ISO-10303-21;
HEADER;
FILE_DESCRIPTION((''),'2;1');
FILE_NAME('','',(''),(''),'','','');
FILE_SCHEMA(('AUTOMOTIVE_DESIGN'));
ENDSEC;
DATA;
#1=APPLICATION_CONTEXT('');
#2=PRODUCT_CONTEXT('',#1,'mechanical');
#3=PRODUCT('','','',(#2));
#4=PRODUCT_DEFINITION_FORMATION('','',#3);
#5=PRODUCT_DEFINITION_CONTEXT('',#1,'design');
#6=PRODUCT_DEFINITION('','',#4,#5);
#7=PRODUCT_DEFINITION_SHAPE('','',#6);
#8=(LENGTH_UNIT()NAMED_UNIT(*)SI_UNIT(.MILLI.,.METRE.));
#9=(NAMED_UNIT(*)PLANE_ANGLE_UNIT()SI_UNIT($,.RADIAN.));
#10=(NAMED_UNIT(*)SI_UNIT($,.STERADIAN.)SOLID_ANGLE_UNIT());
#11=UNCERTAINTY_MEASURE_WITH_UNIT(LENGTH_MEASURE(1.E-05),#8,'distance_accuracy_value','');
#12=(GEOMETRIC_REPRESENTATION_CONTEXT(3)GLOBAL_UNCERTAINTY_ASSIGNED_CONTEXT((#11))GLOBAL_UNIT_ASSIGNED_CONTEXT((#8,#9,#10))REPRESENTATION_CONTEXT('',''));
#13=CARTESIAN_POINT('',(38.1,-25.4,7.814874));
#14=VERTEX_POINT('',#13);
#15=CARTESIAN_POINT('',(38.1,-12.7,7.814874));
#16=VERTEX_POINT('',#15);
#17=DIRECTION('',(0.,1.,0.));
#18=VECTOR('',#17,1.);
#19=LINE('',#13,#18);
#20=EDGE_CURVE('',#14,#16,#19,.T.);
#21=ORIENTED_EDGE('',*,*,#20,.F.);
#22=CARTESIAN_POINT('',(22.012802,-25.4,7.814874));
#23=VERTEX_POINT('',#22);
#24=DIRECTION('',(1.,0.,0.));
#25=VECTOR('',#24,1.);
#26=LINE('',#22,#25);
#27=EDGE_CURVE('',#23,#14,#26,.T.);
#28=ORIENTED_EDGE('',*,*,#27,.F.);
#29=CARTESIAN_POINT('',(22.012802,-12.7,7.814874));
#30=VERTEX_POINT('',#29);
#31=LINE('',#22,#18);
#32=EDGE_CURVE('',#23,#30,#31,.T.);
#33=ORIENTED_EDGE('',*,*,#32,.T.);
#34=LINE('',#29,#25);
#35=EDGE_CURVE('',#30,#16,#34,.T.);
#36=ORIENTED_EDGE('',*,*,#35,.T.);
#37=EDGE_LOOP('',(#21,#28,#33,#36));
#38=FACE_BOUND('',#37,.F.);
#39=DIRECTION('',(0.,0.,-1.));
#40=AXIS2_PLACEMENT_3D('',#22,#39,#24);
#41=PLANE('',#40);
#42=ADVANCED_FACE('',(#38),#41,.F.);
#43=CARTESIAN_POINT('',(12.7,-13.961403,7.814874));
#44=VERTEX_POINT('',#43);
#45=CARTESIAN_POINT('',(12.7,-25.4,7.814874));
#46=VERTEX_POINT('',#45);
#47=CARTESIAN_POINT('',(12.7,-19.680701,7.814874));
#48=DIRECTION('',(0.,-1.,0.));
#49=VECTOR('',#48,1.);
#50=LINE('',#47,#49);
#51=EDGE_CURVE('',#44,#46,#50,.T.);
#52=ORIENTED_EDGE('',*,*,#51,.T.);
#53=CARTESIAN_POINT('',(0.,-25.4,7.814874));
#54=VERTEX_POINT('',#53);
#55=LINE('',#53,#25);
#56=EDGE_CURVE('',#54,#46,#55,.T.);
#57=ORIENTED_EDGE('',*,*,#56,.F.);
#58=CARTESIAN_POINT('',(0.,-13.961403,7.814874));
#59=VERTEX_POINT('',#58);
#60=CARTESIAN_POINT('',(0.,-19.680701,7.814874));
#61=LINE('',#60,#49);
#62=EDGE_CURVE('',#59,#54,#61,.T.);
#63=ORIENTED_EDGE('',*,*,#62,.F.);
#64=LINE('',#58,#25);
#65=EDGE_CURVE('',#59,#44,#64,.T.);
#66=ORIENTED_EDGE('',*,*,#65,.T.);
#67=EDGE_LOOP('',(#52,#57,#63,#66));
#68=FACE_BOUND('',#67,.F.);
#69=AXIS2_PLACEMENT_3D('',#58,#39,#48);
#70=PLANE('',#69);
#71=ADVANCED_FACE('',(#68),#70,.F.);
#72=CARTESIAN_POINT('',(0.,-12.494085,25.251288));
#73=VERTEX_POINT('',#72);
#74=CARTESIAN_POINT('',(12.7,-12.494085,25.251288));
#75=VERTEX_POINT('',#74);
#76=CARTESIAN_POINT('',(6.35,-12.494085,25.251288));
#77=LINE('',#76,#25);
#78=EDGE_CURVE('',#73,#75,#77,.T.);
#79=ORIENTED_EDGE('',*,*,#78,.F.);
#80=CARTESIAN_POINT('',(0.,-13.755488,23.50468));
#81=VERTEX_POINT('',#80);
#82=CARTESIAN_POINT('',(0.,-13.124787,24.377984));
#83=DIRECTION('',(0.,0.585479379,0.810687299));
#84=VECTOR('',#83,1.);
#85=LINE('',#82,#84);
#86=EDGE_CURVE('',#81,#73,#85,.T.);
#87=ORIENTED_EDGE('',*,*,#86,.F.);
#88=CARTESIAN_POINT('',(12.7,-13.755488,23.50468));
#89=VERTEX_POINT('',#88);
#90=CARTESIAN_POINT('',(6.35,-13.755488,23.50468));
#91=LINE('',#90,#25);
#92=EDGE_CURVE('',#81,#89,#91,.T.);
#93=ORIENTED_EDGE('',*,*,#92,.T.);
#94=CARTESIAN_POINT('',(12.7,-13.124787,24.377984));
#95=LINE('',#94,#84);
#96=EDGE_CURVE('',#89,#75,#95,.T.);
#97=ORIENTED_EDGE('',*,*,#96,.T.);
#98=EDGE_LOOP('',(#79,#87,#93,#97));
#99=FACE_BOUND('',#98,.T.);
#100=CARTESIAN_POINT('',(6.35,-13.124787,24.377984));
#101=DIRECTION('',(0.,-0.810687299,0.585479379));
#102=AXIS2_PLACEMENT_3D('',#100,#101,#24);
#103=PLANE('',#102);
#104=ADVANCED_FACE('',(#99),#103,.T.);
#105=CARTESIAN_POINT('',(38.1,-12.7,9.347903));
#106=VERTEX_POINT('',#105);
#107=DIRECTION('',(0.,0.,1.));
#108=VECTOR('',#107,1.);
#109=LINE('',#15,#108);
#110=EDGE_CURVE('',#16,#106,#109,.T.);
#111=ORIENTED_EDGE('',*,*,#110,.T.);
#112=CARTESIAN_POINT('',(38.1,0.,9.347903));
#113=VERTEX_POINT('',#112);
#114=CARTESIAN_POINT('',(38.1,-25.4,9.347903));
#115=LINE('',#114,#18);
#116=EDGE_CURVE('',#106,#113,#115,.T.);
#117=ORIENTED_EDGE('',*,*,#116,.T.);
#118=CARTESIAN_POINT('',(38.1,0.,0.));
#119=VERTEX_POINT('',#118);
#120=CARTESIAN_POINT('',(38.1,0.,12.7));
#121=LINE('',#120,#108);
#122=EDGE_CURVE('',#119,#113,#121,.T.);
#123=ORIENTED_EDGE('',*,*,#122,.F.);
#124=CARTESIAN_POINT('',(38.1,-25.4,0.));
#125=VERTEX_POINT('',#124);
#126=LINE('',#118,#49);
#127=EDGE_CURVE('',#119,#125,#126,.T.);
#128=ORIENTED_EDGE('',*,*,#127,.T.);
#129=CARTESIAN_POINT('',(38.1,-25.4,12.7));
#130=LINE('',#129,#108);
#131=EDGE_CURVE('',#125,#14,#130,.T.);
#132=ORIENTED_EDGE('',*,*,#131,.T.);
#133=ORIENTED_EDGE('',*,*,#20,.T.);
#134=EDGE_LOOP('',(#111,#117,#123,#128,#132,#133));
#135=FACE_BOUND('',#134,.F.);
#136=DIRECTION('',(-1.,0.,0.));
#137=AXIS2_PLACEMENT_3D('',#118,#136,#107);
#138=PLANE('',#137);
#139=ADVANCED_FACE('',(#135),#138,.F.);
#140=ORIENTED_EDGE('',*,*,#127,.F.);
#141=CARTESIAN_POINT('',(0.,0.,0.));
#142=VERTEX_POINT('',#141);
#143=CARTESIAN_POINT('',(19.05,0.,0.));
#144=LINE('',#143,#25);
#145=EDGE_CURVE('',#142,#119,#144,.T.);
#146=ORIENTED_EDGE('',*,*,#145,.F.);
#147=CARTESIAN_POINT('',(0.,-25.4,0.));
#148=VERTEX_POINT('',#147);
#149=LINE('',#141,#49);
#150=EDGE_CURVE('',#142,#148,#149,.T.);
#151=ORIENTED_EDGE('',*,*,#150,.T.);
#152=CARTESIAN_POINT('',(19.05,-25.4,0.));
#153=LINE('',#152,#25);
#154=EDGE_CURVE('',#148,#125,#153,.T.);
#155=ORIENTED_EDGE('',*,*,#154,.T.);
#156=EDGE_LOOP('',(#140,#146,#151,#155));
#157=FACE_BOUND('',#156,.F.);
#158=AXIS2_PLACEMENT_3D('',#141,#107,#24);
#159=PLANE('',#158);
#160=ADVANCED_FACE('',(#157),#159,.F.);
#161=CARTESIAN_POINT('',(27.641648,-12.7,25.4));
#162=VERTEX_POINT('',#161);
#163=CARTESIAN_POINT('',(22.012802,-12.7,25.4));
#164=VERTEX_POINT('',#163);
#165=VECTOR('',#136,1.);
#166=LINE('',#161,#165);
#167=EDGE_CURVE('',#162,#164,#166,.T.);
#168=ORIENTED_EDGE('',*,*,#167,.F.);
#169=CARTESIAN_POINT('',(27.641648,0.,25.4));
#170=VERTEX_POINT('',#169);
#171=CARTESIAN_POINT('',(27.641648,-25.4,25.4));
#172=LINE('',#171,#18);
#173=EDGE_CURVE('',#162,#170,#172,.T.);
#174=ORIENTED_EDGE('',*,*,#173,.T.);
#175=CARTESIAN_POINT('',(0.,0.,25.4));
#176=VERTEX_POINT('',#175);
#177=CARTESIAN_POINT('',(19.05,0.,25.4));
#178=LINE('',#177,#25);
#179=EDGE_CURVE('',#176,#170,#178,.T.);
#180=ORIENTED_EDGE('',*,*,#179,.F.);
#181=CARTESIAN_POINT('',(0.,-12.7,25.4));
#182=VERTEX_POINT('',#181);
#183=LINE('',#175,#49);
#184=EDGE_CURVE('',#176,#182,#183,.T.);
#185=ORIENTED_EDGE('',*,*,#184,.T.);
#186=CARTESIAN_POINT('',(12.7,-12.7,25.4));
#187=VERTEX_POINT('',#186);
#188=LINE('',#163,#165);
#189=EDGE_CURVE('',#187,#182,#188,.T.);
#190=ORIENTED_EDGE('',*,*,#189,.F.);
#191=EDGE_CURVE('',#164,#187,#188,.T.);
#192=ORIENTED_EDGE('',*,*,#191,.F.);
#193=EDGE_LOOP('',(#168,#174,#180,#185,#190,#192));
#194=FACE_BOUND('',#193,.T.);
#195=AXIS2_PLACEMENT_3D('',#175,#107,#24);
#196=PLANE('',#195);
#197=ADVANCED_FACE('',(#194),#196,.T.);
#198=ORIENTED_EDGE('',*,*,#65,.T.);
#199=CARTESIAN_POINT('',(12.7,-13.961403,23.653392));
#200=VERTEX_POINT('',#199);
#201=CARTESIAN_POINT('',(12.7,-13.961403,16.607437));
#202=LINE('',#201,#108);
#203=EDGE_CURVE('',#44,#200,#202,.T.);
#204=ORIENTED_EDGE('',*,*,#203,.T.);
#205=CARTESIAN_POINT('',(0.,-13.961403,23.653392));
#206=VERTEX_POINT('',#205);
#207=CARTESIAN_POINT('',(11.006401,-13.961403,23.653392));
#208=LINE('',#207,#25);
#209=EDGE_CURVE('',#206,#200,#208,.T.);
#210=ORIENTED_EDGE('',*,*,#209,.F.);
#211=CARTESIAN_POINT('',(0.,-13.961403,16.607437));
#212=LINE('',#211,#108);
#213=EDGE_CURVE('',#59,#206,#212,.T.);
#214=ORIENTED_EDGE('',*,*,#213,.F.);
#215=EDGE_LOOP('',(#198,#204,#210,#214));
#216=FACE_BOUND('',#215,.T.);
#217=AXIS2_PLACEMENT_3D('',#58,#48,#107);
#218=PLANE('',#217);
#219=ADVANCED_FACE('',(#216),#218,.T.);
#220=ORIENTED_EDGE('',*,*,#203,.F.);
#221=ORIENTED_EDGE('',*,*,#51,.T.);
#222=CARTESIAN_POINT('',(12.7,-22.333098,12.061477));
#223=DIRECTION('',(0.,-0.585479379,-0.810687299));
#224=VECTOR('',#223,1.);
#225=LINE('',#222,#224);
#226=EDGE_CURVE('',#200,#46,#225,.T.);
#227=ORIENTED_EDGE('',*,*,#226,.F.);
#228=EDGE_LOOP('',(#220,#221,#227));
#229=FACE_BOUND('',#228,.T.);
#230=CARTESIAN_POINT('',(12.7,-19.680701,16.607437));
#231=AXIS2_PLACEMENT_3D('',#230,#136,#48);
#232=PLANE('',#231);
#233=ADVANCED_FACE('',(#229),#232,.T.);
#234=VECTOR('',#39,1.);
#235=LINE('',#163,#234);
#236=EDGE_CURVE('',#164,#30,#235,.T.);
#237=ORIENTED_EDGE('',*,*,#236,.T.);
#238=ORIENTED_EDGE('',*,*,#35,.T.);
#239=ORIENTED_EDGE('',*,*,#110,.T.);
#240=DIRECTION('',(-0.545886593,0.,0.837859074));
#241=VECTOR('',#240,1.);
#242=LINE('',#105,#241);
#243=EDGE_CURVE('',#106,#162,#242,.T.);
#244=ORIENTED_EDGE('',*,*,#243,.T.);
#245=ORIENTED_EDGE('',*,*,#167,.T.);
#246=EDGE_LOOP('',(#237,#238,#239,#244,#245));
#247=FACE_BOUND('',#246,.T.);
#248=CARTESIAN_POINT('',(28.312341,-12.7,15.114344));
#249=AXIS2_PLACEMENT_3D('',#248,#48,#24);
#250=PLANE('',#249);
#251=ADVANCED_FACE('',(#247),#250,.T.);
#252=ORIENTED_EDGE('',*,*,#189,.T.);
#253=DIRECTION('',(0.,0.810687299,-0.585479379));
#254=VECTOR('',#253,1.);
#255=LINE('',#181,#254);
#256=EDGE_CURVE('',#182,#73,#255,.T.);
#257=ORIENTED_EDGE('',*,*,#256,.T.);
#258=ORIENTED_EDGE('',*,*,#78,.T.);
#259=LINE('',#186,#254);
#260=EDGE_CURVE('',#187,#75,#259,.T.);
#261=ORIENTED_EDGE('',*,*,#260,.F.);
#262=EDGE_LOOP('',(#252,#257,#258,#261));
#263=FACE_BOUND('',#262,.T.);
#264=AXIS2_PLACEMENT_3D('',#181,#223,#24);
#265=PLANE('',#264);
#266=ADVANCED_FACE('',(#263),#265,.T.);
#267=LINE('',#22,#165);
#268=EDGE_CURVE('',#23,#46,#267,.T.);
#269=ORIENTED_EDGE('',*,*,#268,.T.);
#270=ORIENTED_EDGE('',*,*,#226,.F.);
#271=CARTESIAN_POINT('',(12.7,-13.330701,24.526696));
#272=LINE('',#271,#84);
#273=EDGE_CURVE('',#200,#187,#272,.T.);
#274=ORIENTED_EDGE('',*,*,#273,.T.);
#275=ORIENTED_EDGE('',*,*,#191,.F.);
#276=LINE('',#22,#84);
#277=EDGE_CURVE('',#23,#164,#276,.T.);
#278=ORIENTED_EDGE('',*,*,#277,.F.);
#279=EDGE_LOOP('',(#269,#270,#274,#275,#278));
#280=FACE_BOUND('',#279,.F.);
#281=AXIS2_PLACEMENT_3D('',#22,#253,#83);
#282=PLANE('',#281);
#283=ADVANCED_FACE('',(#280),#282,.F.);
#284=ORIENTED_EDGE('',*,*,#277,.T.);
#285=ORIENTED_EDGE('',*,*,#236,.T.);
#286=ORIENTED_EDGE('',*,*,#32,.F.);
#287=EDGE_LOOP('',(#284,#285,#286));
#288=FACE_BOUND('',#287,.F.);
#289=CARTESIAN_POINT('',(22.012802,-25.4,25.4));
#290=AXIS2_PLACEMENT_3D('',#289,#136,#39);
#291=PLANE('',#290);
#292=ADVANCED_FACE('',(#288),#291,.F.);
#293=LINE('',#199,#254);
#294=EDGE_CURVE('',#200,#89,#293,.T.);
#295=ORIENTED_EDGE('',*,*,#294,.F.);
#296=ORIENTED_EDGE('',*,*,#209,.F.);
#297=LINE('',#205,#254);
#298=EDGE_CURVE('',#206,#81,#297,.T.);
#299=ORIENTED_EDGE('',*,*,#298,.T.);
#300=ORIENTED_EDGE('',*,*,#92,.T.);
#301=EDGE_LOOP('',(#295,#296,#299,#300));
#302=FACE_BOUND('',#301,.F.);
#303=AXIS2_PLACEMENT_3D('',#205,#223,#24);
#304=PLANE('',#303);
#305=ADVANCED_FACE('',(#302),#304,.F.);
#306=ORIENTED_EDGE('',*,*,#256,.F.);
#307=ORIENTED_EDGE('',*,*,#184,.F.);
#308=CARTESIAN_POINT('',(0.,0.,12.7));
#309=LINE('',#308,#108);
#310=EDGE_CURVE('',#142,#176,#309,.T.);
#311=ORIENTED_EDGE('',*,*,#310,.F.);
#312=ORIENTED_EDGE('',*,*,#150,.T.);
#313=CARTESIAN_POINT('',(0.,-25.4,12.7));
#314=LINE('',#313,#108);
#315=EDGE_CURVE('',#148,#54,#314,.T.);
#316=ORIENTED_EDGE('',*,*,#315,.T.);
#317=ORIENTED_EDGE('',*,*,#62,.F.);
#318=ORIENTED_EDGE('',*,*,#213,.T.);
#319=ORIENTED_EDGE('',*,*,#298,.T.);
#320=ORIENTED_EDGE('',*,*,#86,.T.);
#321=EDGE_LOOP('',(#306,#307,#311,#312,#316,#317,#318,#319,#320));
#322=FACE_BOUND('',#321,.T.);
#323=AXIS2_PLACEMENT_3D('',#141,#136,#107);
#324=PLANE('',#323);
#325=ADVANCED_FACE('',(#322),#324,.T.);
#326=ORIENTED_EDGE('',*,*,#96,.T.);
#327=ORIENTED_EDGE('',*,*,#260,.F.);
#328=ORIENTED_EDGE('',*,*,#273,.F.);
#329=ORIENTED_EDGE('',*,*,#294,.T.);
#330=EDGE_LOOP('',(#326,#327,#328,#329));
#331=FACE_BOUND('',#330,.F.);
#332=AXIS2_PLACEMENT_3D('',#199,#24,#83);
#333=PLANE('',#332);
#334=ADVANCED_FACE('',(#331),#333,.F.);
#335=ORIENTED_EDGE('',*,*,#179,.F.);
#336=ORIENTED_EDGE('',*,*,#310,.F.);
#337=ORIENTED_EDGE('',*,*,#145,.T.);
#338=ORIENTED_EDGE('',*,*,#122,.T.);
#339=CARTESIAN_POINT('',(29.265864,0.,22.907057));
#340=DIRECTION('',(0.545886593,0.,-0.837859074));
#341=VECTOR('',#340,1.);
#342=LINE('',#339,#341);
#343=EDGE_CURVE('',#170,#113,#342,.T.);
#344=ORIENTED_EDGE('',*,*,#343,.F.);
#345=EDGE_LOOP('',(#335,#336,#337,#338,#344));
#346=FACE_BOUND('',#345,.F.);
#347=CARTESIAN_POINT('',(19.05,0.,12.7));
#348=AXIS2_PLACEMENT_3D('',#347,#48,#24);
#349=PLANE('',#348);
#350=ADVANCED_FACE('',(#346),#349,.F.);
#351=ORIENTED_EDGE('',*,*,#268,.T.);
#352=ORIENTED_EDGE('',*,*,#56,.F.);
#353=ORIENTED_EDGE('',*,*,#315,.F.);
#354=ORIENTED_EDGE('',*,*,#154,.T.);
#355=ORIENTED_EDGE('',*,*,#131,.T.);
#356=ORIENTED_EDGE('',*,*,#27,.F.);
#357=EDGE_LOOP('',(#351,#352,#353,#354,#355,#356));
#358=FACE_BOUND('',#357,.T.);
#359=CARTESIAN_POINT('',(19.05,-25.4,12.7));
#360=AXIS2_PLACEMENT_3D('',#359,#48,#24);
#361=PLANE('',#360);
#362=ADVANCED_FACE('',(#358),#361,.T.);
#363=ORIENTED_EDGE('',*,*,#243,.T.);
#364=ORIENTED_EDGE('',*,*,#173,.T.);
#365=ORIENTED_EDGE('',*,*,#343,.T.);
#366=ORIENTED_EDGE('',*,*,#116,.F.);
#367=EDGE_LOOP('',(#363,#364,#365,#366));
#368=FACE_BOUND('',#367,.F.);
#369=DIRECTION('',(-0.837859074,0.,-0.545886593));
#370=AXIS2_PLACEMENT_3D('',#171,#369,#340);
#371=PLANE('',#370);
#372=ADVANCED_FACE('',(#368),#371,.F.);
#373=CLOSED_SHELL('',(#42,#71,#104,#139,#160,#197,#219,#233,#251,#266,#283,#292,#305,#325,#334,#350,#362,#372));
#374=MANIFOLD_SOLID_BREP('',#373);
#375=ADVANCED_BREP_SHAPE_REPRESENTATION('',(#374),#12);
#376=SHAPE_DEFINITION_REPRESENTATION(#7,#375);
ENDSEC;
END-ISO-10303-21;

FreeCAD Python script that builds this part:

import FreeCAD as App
import Part
import Sketcher
Q = App.Units.Quantity


def add_polygon(sketch, points):
    """Adds a closed chain of lines whose ends are joined by coincident constraints."""
    first, n = sketch.GeometryCount, len(points)
    for a, b in zip(points, points[1:] + points[:1]):
        sketch.addGeometry(Part.LineSegment(App.Vector(*a, 0), App.Vector(*b, 0)), False)
    for i in range(n):
        sketch.addConstraint(Sketcher.Constraint("Coincident", first + i, 2, first + (i + 1) % n, 1))

doc = App.newDocument("Part")
body = doc.addObject("PartDesign::Body", "Body")

# Sketch on XZ plane
sketch1 = doc.addObject("Sketcher::SketchObject", "Sketch")
body.addObject(sketch1)
sketch1.AttachmentSupport = (doc.XZ_Plane, [""])
sketch1.MapMode = "FlatFace"
add_polygon(sketch1, [(0, 25), (0, 0), (38, 0), (38, 25)])  # lines 0-3
sketch1.addConstraint([
    Sketcher.Constraint("Vertical", 0),
    Sketcher.Constraint("Horizontal", 1),
    Sketcher.Constraint("Vertical", 2),
    Sketcher.Constraint("Horizontal", 3),
    Sketcher.Constraint("Coincident", 0, 2, -1, 1),
    Sketcher.Constraint("DistanceY", 0, 2, 0, 1, Q("1 in")),
    Sketcher.Constraint("DistanceX", 1, 1, 1, 2, Q("1.5 in")),
])
pad1 = doc.addObject("PartDesign::Pad", "Pad")
body.addObject(pad1)
pad1.Profile = sketch1
pad1.Length = Q("1 in")

# Sketch on XZ plane
sketch2 = doc.addObject("Sketcher::SketchObject", "Sketch001")
body.addObject(sketch2)
sketch2.AttachmentSupport = (doc.XZ_Plane, [""])
sketch2.MapMode = "FlatFace"
sketch2.AttachmentOffset = App.Placement(App.Vector(0, 0, 1 * 25.4), App.Rotation())
add_polygon(sketch2, [(38, 25), (28, 25), (38, 9)])  # lines 0-2
sketch2.addConstraint([
    Sketcher.Constraint("Horizontal", 0),
    Sketcher.Constraint("Vertical", 2),
    Sketcher.Constraint("DistanceY", -1, 1, 0, 2, Q("1 in")),
    Sketcher.Constraint("DistanceX", -1, 1, 1, 2, Q("1.5 in")),
    Sketcher.Constraint("DistanceX", 0, 2, 0, 1, Q("10.458352 mm")),
    Sketcher.Constraint("Distance", 1, Q("19.158469 mm")),
])
pocket1 = doc.addObject("PartDesign::Pocket", "Pocket")
body.addObject(pocket1)
pocket1.Profile = sketch2
pocket1.Type = "ThroughAll"

# Sketch on YZ plane
sketch3 = doc.addObject("Sketcher::SketchObject", "Sketch002")
body.addObject(sketch3)
sketch3.AttachmentSupport = (doc.YZ_Plane, [""])
sketch3.MapMode = "FlatFace"
add_polygon(sketch3, [(-14, 25), (-14, 8), (-25, 8), (-25, 25)])  # lines 0-3
sketch3.addConstraint([
    Sketcher.Constraint("Vertical", 0),
    Sketcher.Constraint("Horizontal", 1),
    Sketcher.Constraint("Vertical", 2),
    Sketcher.Constraint("Horizontal", 3),
    Sketcher.Constraint("DistanceX", 1, 2, -1, 1, Q("1 in")),
    Sketcher.Constraint("DistanceY", -1, 1, 2, 2, Q("1 in")),
    Sketcher.Constraint("DistanceX", 1, 2, 1, 1, Q("11.438597 mm")),
    Sketcher.Constraint("DistanceY", 0, 2, 0, 1, Q("17.585126 mm")),
])
pocket2 = doc.addObject("PartDesign::Pocket", "Pocket001")
body.addObject(pocket2)
pocket2.Profile = sketch3
pocket2.Length = Q("0.5 in")
pocket2.Reversed = True

# Sketch on XZ plane
sketch4 = doc.addObject("Sketcher::SketchObject", "Sketch003")
body.addObject(sketch4)
sketch4.AttachmentSupport = (doc.XZ_Plane, [""])
sketch4.MapMode = "FlatFace"
sketch4.AttachmentOffset = App.Placement(App.Vector(0, 0, 1 * 25.4), App.Rotation())
add_polygon(sketch4, [(22, 25.4), (22, 7.8), (38.1, 7.8), (38.1, 9.3), (27.6, 25.4)])  # lines 0-4
sketch4.addConstraint([
    Sketcher.Constraint("Vertical", 0),
    Sketcher.Constraint("Horizontal", 1),
    Sketcher.Constraint("Vertical", 2),
    Sketcher.Constraint("Horizontal", 4),
    Sketcher.Constraint("DistanceY", -1, 1, 3, 2, Q("1 in")),
    Sketcher.Constraint("DistanceX", -1, 1, 1, 2, Q("1.5 in")),
    Sketcher.Constraint("DistanceX", 1, 1, 1, 2, Q("16.087198 mm")),
    Sketcher.Constraint("DistanceY", 2, 1, 2, 2, Q("1.533029 mm")),
    Sketcher.Constraint("Distance", 3, Q("19.158469 mm")),
    Sketcher.Constraint("DistanceX", 4, 2, 4, 1, Q("5.628847 mm")),
])
pocket3 = doc.addObject("PartDesign::Pocket", "Pocket002")
body.addObject(pocket3)
pocket3.Profile = sketch4
pocket3.Length = Q("0.5 in")

# Sketch on YZ plane
sketch5 = doc.addObject("Sketcher::SketchObject", "Sketch004")
body.addObject(sketch5)
sketch5.AttachmentSupport = (doc.YZ_Plane, [""])
sketch5.MapMode = "FlatFace"
sketch5.AttachmentOffset = App.Placement(App.Vector(0, 0, 22.012802), App.Rotation())
add_polygon(sketch5, [(-25, 25), (-25, 8), (-13, 25)])  # lines 0-2
sketch5.addConstraint([
    Sketcher.Constraint("Vertical", 0),
    Sketcher.Constraint("Horizontal", 2),
    Sketcher.Constraint("DistanceX", 2, 2, 2, 1, Q("0.5 in")),
    Sketcher.Constraint("DistanceX", 0, 2, -1, 1, Q("1 in")),
    Sketcher.Constraint("DistanceY", -1, 1, 1, 2, Q("1 in")),
    Sketcher.Constraint("DistanceY", 0, 2, 0, 1, Q("17.585126 mm")),
])
pocket4 = doc.addObject("PartDesign::Pocket", "Pocket003")
body.addObject(pocket4)
pocket4.Profile = sketch5
pocket4.Length = Q("1 in")

# Sketch on an angled plane
sketch6 = doc.addObject("Sketcher::SketchObject", "Sketch005")
body.addObject(sketch6)
sketch6.Placement = App.Placement(App.Vector(0, -20.40249, 14.734704), App.Rotation(App.Vector(1, 0, 0), App.Vector(0, 0.585479379, 0.810687299), App.Vector(0, -0.810687299, 0.585479379), "ZXY"))
add_polygon(sketch6, [(0, 13.2), (0, 11), (12.7, 11), (12.7, 13.2)])  # lines 0-3
sketch6.addConstraint([
    Sketcher.Constraint("Vertical", 0),
    Sketcher.Constraint("Horizontal", 1),
    Sketcher.Constraint("Vertical", 2),
    Sketcher.Constraint("Horizontal", 3),
    Sketcher.Constraint("PointOnObject", 0, 2, -2),
    Sketcher.Constraint("DistanceX", 1, 1, 1, 2, Q("0.5 in")),
    Sketcher.Constraint("DistanceY", 0, 2, 0, 1, Q("2.154478 mm")),
    Sketcher.Constraint("DistanceY", -1, 1, 0, 2, Q("11.001391 mm")),
])
pocket5 = doc.addObject("PartDesign::Pocket", "Pocket004")
body.addObject(pocket5)
pocket5.Profile = sketch6
pocket5.Length = Q("0.01 in")

doc.recompute()
